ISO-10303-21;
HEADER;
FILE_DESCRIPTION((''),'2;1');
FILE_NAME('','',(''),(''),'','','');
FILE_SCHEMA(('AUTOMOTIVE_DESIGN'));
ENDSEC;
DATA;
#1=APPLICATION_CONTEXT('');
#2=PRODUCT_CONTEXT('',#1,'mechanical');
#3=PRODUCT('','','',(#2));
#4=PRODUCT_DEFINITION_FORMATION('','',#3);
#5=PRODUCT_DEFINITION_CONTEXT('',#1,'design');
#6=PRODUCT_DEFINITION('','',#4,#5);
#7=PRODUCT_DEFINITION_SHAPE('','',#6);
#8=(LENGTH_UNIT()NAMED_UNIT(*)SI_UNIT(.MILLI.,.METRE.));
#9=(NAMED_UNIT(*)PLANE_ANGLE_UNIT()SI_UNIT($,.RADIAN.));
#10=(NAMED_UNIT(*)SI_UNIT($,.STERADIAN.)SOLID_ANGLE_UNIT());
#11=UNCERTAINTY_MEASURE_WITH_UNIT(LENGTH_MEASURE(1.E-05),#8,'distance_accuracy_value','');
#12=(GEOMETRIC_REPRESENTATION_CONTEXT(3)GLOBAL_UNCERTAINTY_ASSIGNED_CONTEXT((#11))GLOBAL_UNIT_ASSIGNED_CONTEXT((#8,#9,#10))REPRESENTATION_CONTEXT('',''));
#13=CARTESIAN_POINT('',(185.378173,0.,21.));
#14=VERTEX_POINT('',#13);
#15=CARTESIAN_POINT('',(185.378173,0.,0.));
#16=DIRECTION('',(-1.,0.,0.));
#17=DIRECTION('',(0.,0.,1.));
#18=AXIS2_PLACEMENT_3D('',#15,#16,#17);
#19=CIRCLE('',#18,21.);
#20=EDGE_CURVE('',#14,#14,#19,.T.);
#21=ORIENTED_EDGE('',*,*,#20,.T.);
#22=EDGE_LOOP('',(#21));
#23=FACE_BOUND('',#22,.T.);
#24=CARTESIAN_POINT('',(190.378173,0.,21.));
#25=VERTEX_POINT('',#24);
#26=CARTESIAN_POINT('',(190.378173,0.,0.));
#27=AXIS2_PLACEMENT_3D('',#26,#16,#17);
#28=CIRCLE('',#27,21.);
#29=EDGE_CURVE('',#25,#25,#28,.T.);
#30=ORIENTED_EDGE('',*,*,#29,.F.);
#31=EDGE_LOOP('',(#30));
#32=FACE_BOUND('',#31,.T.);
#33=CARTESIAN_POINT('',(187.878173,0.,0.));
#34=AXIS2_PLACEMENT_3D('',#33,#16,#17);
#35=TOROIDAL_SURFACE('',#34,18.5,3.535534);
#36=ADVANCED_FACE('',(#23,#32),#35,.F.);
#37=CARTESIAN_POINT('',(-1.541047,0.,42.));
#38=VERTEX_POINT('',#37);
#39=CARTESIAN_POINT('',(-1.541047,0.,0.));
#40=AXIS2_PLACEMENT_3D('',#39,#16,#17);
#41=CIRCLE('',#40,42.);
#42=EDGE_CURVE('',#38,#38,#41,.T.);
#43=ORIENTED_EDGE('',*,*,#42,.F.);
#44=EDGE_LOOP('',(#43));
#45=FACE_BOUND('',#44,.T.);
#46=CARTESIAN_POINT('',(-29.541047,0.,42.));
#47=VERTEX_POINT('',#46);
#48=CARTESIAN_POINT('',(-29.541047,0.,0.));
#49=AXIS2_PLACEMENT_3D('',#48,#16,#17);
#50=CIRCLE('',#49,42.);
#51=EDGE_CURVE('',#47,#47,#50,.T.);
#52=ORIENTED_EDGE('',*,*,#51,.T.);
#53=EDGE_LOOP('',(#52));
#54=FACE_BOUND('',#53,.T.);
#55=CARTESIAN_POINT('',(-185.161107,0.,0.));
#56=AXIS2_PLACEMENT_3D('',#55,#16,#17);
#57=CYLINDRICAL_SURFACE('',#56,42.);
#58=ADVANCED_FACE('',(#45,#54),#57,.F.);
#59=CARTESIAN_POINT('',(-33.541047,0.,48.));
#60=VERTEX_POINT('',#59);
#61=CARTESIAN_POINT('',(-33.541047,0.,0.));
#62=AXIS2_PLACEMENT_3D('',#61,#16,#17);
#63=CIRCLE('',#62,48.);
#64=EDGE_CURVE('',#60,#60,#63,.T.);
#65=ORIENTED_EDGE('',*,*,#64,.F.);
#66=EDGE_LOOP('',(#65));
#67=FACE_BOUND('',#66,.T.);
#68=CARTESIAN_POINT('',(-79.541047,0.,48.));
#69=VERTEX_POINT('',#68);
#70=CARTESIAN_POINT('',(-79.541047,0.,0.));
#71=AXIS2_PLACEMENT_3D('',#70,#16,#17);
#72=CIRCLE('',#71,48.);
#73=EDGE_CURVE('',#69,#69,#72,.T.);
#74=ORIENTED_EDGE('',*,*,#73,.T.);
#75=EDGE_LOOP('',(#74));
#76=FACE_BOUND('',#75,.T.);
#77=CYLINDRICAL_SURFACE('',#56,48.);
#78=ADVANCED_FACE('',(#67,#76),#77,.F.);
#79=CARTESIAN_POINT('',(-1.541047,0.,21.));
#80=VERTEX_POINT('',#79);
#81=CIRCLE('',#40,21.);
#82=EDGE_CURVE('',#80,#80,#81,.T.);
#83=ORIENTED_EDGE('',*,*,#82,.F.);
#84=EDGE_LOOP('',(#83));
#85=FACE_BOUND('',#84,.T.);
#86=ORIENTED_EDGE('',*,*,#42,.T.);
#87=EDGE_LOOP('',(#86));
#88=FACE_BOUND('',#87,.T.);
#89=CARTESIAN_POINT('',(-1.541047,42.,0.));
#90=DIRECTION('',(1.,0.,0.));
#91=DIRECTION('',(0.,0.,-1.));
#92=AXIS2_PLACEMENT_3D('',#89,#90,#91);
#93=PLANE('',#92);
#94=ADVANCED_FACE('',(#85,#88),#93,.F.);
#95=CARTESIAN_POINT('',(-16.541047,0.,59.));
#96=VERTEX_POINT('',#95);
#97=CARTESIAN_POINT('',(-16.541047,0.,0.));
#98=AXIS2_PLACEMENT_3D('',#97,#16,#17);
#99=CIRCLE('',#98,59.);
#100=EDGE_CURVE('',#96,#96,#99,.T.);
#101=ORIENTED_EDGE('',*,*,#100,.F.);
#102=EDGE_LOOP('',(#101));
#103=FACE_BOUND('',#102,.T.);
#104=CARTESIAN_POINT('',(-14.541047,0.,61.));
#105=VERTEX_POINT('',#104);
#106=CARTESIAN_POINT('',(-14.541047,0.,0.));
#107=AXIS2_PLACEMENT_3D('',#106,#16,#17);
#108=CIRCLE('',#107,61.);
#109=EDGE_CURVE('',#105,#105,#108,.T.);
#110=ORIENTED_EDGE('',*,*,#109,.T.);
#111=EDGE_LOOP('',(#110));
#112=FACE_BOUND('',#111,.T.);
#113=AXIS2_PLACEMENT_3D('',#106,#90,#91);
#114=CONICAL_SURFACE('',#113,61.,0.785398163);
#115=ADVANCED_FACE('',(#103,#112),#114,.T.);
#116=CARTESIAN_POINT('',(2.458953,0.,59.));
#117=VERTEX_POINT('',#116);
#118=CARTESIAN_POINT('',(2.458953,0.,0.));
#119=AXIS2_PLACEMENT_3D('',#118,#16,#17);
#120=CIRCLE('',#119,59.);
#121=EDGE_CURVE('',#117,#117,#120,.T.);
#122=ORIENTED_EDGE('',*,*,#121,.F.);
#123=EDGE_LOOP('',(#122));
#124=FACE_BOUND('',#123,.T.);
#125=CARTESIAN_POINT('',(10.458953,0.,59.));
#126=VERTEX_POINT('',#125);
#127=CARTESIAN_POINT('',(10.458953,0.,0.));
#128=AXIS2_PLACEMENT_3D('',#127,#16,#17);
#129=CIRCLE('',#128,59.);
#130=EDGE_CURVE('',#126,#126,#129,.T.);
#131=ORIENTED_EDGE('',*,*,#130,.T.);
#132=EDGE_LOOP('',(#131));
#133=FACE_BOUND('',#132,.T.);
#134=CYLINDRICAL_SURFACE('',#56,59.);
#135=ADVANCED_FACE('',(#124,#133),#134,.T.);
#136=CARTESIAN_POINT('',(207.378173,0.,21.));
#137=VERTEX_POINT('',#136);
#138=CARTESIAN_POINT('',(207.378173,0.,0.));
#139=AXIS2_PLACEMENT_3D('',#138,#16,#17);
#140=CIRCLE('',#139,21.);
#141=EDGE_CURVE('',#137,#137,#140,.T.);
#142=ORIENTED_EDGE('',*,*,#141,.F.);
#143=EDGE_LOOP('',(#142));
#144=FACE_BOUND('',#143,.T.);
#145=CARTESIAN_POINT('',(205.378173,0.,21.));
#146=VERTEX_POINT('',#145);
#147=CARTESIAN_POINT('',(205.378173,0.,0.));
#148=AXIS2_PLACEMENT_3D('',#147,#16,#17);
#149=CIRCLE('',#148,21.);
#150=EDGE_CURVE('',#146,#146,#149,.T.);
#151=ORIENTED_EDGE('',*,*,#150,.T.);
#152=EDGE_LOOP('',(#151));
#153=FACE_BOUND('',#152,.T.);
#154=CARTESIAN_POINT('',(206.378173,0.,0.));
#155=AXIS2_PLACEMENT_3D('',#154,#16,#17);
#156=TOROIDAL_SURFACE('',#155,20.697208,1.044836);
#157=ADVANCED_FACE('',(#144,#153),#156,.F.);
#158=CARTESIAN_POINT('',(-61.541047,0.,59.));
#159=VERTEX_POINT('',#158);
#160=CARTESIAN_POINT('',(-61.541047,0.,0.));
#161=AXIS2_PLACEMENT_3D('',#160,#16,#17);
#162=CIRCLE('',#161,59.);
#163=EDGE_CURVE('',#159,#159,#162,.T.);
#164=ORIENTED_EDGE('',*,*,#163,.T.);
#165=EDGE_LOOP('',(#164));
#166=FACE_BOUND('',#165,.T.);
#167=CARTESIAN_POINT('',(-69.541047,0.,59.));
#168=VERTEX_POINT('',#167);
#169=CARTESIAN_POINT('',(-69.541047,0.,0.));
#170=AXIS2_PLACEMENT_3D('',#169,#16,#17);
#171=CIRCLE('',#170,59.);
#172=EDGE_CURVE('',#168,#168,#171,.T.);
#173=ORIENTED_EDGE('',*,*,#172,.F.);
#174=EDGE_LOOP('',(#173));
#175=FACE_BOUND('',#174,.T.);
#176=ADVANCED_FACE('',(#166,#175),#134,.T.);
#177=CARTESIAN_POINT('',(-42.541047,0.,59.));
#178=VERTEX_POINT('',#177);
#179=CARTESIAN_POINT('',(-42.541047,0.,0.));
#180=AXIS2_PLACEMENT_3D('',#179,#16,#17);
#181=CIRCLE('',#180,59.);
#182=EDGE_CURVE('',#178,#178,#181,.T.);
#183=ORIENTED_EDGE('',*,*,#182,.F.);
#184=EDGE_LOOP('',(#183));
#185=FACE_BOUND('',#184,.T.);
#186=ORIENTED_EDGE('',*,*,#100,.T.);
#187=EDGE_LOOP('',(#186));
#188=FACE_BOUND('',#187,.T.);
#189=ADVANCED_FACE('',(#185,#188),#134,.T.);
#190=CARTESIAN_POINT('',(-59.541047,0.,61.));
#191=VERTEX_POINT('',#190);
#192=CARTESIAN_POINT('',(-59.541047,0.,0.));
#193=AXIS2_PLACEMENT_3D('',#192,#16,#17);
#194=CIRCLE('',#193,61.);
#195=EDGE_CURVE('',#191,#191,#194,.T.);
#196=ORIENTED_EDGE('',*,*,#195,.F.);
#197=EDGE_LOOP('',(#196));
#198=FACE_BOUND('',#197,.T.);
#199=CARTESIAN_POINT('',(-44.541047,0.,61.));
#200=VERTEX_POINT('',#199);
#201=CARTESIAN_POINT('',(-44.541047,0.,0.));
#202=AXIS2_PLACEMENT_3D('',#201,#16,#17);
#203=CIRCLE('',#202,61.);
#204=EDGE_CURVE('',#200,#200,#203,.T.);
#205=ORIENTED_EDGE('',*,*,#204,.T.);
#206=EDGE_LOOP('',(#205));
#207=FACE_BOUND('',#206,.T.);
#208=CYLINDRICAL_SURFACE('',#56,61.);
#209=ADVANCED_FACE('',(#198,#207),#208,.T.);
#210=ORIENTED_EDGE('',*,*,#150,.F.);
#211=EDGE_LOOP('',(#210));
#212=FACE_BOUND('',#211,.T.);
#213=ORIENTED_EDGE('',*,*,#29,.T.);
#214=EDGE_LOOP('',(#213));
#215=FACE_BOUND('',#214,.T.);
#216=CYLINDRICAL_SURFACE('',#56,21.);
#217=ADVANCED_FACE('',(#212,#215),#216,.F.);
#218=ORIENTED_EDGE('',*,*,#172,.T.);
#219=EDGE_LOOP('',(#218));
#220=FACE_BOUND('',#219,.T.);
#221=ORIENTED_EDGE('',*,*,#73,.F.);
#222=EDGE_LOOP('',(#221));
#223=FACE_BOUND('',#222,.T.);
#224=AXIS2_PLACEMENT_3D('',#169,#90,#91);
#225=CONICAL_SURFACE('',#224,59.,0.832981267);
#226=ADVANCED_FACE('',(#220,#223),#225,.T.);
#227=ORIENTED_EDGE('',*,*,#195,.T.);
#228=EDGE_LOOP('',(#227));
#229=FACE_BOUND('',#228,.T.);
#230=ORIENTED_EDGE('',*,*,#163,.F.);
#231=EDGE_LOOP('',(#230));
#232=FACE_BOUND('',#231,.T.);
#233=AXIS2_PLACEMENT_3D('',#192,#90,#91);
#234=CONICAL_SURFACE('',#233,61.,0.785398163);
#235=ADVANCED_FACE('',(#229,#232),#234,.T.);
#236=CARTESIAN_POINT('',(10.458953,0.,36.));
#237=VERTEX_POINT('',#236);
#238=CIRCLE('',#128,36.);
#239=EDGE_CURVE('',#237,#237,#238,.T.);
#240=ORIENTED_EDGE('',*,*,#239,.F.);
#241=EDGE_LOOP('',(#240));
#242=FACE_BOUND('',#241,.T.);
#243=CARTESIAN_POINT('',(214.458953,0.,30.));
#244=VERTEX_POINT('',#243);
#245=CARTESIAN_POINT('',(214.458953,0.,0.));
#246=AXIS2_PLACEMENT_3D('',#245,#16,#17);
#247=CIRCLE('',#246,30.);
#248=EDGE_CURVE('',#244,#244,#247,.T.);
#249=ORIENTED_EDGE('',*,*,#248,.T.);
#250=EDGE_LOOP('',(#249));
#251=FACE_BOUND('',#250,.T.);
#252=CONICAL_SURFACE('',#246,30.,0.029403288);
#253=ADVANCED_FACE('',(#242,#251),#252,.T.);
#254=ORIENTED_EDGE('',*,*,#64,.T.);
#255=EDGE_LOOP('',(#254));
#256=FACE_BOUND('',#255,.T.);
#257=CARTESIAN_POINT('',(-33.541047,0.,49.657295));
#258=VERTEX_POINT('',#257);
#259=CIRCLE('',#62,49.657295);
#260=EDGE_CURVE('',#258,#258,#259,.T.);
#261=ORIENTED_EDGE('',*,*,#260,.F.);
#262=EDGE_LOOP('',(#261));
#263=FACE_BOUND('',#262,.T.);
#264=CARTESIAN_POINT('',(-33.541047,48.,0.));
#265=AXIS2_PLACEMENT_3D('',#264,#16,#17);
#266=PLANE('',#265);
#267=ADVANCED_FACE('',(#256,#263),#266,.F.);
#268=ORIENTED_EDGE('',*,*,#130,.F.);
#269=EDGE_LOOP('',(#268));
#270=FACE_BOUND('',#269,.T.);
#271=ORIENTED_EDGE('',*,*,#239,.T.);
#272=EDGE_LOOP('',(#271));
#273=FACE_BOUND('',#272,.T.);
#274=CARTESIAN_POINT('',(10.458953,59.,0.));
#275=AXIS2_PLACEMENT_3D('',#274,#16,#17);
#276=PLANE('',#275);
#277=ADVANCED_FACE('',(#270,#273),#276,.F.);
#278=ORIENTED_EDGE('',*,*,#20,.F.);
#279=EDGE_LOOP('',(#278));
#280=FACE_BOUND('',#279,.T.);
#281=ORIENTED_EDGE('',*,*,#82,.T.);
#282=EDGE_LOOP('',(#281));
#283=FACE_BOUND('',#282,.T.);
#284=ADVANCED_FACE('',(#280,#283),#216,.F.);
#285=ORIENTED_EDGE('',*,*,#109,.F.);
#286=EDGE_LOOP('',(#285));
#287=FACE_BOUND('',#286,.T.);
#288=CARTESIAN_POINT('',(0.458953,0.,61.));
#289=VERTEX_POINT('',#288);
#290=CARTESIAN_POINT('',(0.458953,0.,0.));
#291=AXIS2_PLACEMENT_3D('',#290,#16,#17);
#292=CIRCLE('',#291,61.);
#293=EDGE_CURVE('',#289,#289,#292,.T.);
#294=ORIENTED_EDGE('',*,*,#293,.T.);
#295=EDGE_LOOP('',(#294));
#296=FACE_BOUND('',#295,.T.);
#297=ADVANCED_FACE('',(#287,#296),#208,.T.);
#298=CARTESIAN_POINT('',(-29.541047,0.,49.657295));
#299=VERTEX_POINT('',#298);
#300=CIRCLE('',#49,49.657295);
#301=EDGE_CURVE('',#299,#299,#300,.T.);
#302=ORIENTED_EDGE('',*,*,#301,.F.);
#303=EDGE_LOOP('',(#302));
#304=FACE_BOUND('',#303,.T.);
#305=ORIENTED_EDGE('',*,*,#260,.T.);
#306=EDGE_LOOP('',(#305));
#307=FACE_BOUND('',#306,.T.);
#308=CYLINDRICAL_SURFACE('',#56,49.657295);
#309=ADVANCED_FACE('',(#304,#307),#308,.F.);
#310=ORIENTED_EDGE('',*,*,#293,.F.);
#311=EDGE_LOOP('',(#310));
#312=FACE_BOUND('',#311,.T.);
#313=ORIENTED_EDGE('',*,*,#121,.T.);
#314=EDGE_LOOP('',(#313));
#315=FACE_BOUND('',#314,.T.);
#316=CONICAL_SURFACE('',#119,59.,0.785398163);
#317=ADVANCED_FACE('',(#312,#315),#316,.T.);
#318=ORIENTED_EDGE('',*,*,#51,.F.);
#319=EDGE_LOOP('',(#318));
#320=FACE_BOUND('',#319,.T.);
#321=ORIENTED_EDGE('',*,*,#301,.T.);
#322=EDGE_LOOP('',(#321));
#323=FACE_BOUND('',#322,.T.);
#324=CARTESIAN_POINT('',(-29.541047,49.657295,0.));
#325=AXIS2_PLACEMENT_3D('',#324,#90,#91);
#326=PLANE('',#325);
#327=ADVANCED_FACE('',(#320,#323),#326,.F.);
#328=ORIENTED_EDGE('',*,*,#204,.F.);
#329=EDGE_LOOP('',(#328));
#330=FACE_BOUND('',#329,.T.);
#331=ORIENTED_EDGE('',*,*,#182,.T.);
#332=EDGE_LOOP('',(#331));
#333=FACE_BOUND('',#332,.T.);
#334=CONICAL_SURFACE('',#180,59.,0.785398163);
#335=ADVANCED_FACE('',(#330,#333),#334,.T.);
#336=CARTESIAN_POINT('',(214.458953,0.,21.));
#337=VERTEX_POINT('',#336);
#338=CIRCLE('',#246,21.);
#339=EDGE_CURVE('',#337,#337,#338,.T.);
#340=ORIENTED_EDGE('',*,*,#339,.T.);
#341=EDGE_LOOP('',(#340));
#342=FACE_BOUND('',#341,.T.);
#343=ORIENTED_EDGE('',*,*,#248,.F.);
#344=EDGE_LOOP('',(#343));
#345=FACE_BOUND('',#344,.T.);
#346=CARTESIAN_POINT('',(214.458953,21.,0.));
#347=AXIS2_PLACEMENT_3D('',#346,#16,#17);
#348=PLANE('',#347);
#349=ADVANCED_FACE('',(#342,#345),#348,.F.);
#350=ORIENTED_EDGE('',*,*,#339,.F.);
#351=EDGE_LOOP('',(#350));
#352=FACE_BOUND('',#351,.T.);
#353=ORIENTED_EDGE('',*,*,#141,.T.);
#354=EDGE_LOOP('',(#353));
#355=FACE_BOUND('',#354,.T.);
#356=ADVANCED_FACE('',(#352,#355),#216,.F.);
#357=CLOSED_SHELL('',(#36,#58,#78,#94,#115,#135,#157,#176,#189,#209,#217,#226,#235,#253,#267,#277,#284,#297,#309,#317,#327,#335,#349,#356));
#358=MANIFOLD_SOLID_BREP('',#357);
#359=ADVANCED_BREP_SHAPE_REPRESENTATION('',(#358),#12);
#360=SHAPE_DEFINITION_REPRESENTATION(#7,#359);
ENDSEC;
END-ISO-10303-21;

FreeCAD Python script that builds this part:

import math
import FreeCAD as App
import Part
import Sketcher

doc = App.newDocument("Part")
body = doc.addObject("PartDesign::Body", "Body")

sketch1 = doc.addObject("Sketcher::SketchObject", "Sketch")
body.addObject(sketch1)
sketch1.AttachmentSupport = (doc.XY_Plane, [""])
sketch1.MapMode = "FlatFace"
sketch1.addGeometry(Part.LineSegment(App.Vector(-61.5, 59, 0), App.Vector(-69.5, 59, 0)), False)
sketch1.addGeometry(Part.LineSegment(App.Vector(-69.5, 59, 0), App.Vector(-79.5, 48, 0)), False)
sketch1.addGeometry(Part.LineSegment(App.Vector(-79.5, 48, 0), App.Vector(-33.5, 48, 0)), False)
sketch1.addGeometry(Part.LineSegment(App.Vector(-33.5, 48, 0), App.Vector(-33.5, 49.7, 0)), False)
sketch1.addGeometry(Part.LineSegment(App.Vector(-33.5, 49.7, 0), App.Vector(-29.5, 49.7, 0)), False)
sketch1.addGeometry(Part.LineSegment(App.Vector(-29.5, 49.7, 0), App.Vector(-29.5, 42, 0)), False)
sketch1.addGeometry(Part.LineSegment(App.Vector(-29.5, 42, 0), App.Vector(-1.5, 42, 0)), False)
sketch1.addGeometry(Part.LineSegment(App.Vector(-1.5, 42, 0), App.Vector(-1.5, 21, 0)), False)
sketch1.addGeometry(Part.LineSegment(App.Vector(-1.5, 21, 0), App.Vector(185.4, 21, 0)), False)
sketch1.addGeometry(Part.ArcOfCircle(Part.Circle(App.Vector(187.9, 18.5, 0), App.Vector(0, 0, 1), 3.5), math.radians(45), math.radians(135)), False)
sketch1.addGeometry(Part.LineSegment(App.Vector(190.4, 21, 0), App.Vector(205.4, 21, 0)), False)
sketch1.addGeometry(Part.ArcOfCircle(Part.Circle(App.Vector(206.4, 20.7, 0), App.Vector(0, 0, 1), 1), math.radians(17), math.radians(163)), False)
sketch1.addGeometry(Part.LineSegment(App.Vector(207.4, 21, 0), App.Vector(214.5, 21, 0)), False)
sketch1.addGeometry(Part.LineSegment(App.Vector(214.5, 21, 0), App.Vector(214.5, 30, 0)), False)
sketch1.addGeometry(Part.LineSegment(App.Vector(214.5, 30, 0), App.Vector(10.5, 36, 0)), False)
sketch1.addGeometry(Part.LineSegment(App.Vector(10.5, 36, 0), App.Vector(10.5, 59, 0)), False)
sketch1.addGeometry(Part.LineSegment(App.Vector(10.5, 59, 0), App.Vector(2.5, 59, 0)), False)
sketch1.addGeometry(Part.LineSegment(App.Vector(2.5, 59, 0), App.Vector(0.5, 61, 0)), False)
sketch1.addGeometry(Part.LineSegment(App.Vector(0.5, 61, 0), App.Vector(-14.5, 61, 0)), False)
sketch1.addGeometry(Part.LineSegment(App.Vector(-14.5, 61, 0), App.Vector(-16.5, 59, 0)), False)
sketch1.addGeometry(Part.LineSegment(App.Vector(-16.5, 59, 0), App.Vector(-42.5, 59, 0)), False)
sketch1.addGeometry(Part.LineSegment(App.Vector(-42.5, 59, 0), App.Vector(-44.5, 61, 0)), False)
sketch1.addGeometry(Part.LineSegment(App.Vector(-44.5, 61, 0), App.Vector(-59.5, 61, 0)), False)
sketch1.addGeometry(Part.LineSegment(App.Vector(-59.5, 61, 0), App.Vector(-61.5, 59, 0)), False)
sketch1.addConstraint(Sketcher.Constraint("Coincident", 0, 2, 1, 1))
sketch1.addConstraint(Sketcher.Constraint("Coincident", 1, 2, 2, 1))
sketch1.addConstraint(Sketcher.Constraint("Coincident", 2, 2, 3, 1))
sketch1.addConstraint(Sketcher.Constraint("Coincident", 3, 2, 4, 1))
sketch1.addConstraint(Sketcher.Constraint("Coincident", 4, 2, 5, 1))
sketch1.addConstraint(Sketcher.Constraint("Coincident", 5, 2, 6, 1))
sketch1.addConstraint(Sketcher.Constraint("Coincident", 6, 2, 7, 1))
sketch1.addConstraint(Sketcher.Constraint("Coincident", 7, 2, 8, 1))
sketch1.addConstraint(Sketcher.Constraint("Coincident", 8, 2, 9, 2))
sketch1.addConstraint(Sketcher.Constraint("Coincident", 9, 1, 10, 1))
sketch1.addConstraint(Sketcher.Constraint("Coincident", 10, 2, 11, 2))
sketch1.addConstraint(Sketcher.Constraint("Coincident", 11, 1, 12, 1))
sketch1.addConstraint(Sketcher.Constraint("Coincident", 12, 2, 13, 1))
sketch1.addConstraint(Sketcher.Constraint("Coincident", 13, 2, 14, 1))
sketch1.addConstraint(Sketcher.Constraint("Coincident", 14, 2, 15, 1))
sketch1.addConstraint(Sketcher.Constraint("Coincident", 15, 2, 16, 1))
sketch1.addConstraint(Sketcher.Constraint("Coincident", 16, 2, 17, 1))
sketch1.addConstraint(Sketcher.Constraint("Coincident", 17, 2, 18, 1))
sketch1.addConstraint(Sketcher.Constraint("Coincident", 18, 2, 19, 1))
sketch1.addConstraint(Sketcher.Constraint("Coincident", 19, 2, 20, 1))
sketch1.addConstraint(Sketcher.Constraint("Coincident", 20, 2, 21, 1))
sketch1.addConstraint(Sketcher.Constraint("Coincident", 21, 2, 22, 1))
sketch1.addConstraint(Sketcher.Constraint("Coincident", 22, 2, 23, 1))
sketch1.addConstraint(Sketcher.Constraint("Coincident", 23, 2, 0, 1))
sketch1.addConstraint(Sketcher.Constraint("Horizontal", 0))
sketch1.addConstraint(Sketcher.Constraint("Horizontal", 2))
sketch1.addConstraint(Sketcher.Constraint("Vertical", 3))
sketch1.addConstraint(Sketcher.Constraint("Horizontal", 4))
sketch1.addConstraint(Sketcher.Constraint("Vertical", 5))
sketch1.addConstraint(Sketcher.Constraint("Horizontal", 6))
sketch1.addConstraint(Sketcher.Constraint("Vertical", 7))
sketch1.addConstraint(Sketcher.Constraint("Horizontal", 8))
sketch1.addConstraint(Sketcher.Constraint("Horizontal", 10))
sketch1.addConstraint(Sketcher.Constraint("Horizontal", 12))
sketch1.addConstraint(Sketcher.Constraint("Vertical", 13))
sketch1.addConstraint(Sketcher.Constraint("Vertical", 15))
sketch1.addConstraint(Sketcher.Constraint("Horizontal", 16))
sketch1.addConstraint(Sketcher.Constraint("Horizontal", 18))
sketch1.addConstraint(Sketcher.Constraint("Horizontal", 20))
sketch1.addConstraint(Sketcher.Constraint("Horizontal", 22))
sketch1.addConstraint(Sketcher.Constraint("Perpendicular", 17, 19))
sketch1.addConstraint(Sketcher.Constraint("Perpendicular", 19, 21))
sketch1.addConstraint(Sketcher.Constraint("Perpendicular", 21, 23))
sketch1.addConstraint(Sketcher.Constraint("Horizontal", 8, 2, 9, 1))
sketch1.addConstraint(Sketcher.Constraint("Horizontal", 10, 2, 11, 1))
sketch1.addConstraint(Sketcher.Constraint("Horizontal", 0, 2, 15, 2))
sketch1.addConstraint(Sketcher.Constraint("Horizontal", 16, 2, 19, 2))
sketch1.addConstraint(Sketcher.Constraint("Horizontal", 18, 2, 21, 2))
sketch1.addConstraint(Sketcher.Constraint("Equal", 0, 16))
sketch1.addConstraint(Sketcher.Constraint("Equal", 10, 18))
sketch1.addConstraint(Sketcher.Constraint("Equal", 18, 22))
sketch1.addConstraint(Sketcher.Constraint("Equal", 17, 19))
sketch1.addConstraint(Sketcher.Constraint("DistanceX", 0, 2, 0, 1, 8.0))
sketch1.addConstraint(Sketcher.Constraint("DistanceX", 2, 1, 2, 2, 46.0))
sketch1.addConstraint(Sketcher.Constraint("DistanceX", 4, 1, 4, 2, 4.0))
sketch1.addConstraint(Sketcher.Constraint("DistanceX", 6, 1, 6, 2, 28.0))
sketch1.addConstraint(Sketcher.Constraint("DistanceX", 10, 1, 10, 2, 15.0))
sketch1.addConstraint(Sketcher.Constraint("DistanceX", 20, 2, 20, 1, 26.0))
sketch1.addConstraint(Sketcher.Constraint("DistanceY", 7, 2, 7, 1, 21.0))
sketch1.addConstraint(Sketcher.Constraint("DistanceY", 13, 1, 13, 2, 9.0))
sketch1.addConstraint(Sketcher.Constraint("DistanceY", 15, 1, 15, 2, 23.0))
sketch1.addConstraint(Sketcher.Constraint("DistanceY", -1, 1, 0, 2, 59.0))
sketch1.addConstraint(Sketcher.Constraint("DistanceY", -1, 1, 1, 2, 48.0))
sketch1.addConstraint(Sketcher.Constraint("DistanceY", -1, 1, 5, 2, 42.0))
sketch1.addConstraint(Sketcher.Constraint("DistanceY", -1, 1, 17, 2, 61.0))
sketch1.addConstraint(Sketcher.Constraint("DistanceX", 1, 2, 0, 2, 10.0))
sketch1.addConstraint(Sketcher.Constraint("DistanceX", 8, 2, 11, 3, 21.0))
sketch1.addConstraint(Sketcher.Constraint("DistanceX", 8, 2, 9, 1, 5.0))
sketch1.addConstraint(Sketcher.Constraint("DistanceY", -1, 1, 9, 3, 18.5))
sketch1.addConstraint(Sketcher.Constraint("Radius", 11, 1.044836))
sketch1.addConstraint(Sketcher.Constraint("DistanceX", 8, 1, 8, 2, 186.91922))
sketch1.addConstraint(Sketcher.Constraint("DistanceX", 12, 1, 12, 2, 7.08078))
sketch1.addConstraint(Sketcher.Constraint("DistanceY", 3, 1, 3, 2, 1.657295))
sketch1.addConstraint(Sketcher.Constraint("DistanceX", -1, 1, 9, 3, 187.878173))
revolution = doc.addObject("PartDesign::Revolution", "Revolution")
body.addObject(revolution)
revolution.Profile = sketch1
revolution.ReferenceAxis = (sketch1, ["H_Axis"])
revolution.Angle = 360

doc.recompute()
